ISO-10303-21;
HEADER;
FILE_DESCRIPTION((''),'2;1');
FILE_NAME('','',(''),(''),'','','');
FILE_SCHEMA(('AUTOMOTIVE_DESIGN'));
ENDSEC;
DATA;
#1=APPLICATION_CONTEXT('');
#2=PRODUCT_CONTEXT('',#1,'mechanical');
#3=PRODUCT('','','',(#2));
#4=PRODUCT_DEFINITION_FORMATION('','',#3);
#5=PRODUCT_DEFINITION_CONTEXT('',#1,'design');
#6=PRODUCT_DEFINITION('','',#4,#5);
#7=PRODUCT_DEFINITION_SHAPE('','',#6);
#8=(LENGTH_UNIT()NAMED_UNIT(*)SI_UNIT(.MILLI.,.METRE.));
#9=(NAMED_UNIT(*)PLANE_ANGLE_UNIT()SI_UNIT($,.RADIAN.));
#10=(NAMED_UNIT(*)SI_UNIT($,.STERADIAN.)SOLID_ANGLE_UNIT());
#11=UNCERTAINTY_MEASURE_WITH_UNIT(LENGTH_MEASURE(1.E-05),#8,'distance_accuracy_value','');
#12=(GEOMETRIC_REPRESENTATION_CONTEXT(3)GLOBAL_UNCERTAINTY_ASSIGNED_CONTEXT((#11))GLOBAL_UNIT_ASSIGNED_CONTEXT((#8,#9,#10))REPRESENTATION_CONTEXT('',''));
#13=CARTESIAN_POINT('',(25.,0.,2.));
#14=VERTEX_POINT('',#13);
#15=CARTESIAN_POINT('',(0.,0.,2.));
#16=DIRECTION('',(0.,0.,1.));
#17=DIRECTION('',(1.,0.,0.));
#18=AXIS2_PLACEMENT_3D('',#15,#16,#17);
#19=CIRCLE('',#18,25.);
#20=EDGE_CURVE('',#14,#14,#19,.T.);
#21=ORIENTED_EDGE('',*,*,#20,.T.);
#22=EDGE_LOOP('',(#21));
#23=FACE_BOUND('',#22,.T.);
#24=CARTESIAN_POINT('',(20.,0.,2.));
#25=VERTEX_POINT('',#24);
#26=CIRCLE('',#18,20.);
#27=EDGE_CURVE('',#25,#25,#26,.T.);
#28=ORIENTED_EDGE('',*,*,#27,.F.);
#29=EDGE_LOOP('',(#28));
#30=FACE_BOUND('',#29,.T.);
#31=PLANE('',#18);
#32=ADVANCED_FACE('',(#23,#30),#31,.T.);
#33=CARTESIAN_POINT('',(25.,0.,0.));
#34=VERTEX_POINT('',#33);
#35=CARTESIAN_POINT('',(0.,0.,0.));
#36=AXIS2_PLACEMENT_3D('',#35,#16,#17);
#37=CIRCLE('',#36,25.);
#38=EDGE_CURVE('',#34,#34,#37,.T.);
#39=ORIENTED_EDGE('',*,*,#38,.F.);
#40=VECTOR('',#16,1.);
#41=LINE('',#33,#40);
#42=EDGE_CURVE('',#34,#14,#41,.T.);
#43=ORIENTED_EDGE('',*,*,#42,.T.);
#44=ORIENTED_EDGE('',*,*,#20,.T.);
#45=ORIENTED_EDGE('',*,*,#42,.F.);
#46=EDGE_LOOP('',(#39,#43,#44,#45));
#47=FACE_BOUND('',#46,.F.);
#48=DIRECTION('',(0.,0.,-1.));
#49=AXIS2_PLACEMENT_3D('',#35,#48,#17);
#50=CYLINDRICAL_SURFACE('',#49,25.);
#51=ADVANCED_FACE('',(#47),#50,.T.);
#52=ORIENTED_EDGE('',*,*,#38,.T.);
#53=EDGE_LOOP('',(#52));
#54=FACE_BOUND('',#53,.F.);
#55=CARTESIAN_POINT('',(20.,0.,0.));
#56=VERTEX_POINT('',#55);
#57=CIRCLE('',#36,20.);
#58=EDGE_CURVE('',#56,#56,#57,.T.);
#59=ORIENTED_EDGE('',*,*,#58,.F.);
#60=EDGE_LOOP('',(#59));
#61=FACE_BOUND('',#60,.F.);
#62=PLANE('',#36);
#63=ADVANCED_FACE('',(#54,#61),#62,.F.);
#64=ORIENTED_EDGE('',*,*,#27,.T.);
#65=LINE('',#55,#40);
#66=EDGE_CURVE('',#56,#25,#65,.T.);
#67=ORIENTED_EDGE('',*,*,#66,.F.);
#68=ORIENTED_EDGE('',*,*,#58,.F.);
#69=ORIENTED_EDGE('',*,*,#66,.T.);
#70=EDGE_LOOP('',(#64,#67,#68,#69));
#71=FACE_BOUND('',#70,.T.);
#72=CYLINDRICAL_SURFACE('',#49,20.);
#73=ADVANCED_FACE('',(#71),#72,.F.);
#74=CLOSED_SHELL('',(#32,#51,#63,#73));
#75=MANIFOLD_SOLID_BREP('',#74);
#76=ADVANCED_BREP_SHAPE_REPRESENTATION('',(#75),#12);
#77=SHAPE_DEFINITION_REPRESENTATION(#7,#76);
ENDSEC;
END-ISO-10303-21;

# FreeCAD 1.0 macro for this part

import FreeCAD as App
import Part
import Sketcher

V = App.Vector

doc = App.newDocument("Part")
body = doc.addObject("PartDesign::Body", "Body")

sketch1 = body.newObject("Sketcher::SketchObject", "Sketch")
sketch1.AttachmentSupport = (doc.getObject("XY_Plane"), [""])
sketch1.MapMode = "FlatFace"
sketch1.addGeometry([
    Part.Circle(V(0, 0, 0), V(0, 0, 1), 25),
    Part.Circle(V(0, 0, 0), V(0, 0, 1), 20),
], False)
sketch1.addConstraint([
    Sketcher.Constraint("Coincident", 0, 3, -1, 1),
    Sketcher.Constraint("Coincident", 1, 3, -1, 1),
    Sketcher.Constraint("Diameter", 0, 50.0),
    Sketcher.Constraint("Diameter", 1, 40.0),
])
pad1 = body.newObject("PartDesign::Pad", "Pad")
pad1.Profile = sketch1
pad1.Length = 2

doc.recompute()
